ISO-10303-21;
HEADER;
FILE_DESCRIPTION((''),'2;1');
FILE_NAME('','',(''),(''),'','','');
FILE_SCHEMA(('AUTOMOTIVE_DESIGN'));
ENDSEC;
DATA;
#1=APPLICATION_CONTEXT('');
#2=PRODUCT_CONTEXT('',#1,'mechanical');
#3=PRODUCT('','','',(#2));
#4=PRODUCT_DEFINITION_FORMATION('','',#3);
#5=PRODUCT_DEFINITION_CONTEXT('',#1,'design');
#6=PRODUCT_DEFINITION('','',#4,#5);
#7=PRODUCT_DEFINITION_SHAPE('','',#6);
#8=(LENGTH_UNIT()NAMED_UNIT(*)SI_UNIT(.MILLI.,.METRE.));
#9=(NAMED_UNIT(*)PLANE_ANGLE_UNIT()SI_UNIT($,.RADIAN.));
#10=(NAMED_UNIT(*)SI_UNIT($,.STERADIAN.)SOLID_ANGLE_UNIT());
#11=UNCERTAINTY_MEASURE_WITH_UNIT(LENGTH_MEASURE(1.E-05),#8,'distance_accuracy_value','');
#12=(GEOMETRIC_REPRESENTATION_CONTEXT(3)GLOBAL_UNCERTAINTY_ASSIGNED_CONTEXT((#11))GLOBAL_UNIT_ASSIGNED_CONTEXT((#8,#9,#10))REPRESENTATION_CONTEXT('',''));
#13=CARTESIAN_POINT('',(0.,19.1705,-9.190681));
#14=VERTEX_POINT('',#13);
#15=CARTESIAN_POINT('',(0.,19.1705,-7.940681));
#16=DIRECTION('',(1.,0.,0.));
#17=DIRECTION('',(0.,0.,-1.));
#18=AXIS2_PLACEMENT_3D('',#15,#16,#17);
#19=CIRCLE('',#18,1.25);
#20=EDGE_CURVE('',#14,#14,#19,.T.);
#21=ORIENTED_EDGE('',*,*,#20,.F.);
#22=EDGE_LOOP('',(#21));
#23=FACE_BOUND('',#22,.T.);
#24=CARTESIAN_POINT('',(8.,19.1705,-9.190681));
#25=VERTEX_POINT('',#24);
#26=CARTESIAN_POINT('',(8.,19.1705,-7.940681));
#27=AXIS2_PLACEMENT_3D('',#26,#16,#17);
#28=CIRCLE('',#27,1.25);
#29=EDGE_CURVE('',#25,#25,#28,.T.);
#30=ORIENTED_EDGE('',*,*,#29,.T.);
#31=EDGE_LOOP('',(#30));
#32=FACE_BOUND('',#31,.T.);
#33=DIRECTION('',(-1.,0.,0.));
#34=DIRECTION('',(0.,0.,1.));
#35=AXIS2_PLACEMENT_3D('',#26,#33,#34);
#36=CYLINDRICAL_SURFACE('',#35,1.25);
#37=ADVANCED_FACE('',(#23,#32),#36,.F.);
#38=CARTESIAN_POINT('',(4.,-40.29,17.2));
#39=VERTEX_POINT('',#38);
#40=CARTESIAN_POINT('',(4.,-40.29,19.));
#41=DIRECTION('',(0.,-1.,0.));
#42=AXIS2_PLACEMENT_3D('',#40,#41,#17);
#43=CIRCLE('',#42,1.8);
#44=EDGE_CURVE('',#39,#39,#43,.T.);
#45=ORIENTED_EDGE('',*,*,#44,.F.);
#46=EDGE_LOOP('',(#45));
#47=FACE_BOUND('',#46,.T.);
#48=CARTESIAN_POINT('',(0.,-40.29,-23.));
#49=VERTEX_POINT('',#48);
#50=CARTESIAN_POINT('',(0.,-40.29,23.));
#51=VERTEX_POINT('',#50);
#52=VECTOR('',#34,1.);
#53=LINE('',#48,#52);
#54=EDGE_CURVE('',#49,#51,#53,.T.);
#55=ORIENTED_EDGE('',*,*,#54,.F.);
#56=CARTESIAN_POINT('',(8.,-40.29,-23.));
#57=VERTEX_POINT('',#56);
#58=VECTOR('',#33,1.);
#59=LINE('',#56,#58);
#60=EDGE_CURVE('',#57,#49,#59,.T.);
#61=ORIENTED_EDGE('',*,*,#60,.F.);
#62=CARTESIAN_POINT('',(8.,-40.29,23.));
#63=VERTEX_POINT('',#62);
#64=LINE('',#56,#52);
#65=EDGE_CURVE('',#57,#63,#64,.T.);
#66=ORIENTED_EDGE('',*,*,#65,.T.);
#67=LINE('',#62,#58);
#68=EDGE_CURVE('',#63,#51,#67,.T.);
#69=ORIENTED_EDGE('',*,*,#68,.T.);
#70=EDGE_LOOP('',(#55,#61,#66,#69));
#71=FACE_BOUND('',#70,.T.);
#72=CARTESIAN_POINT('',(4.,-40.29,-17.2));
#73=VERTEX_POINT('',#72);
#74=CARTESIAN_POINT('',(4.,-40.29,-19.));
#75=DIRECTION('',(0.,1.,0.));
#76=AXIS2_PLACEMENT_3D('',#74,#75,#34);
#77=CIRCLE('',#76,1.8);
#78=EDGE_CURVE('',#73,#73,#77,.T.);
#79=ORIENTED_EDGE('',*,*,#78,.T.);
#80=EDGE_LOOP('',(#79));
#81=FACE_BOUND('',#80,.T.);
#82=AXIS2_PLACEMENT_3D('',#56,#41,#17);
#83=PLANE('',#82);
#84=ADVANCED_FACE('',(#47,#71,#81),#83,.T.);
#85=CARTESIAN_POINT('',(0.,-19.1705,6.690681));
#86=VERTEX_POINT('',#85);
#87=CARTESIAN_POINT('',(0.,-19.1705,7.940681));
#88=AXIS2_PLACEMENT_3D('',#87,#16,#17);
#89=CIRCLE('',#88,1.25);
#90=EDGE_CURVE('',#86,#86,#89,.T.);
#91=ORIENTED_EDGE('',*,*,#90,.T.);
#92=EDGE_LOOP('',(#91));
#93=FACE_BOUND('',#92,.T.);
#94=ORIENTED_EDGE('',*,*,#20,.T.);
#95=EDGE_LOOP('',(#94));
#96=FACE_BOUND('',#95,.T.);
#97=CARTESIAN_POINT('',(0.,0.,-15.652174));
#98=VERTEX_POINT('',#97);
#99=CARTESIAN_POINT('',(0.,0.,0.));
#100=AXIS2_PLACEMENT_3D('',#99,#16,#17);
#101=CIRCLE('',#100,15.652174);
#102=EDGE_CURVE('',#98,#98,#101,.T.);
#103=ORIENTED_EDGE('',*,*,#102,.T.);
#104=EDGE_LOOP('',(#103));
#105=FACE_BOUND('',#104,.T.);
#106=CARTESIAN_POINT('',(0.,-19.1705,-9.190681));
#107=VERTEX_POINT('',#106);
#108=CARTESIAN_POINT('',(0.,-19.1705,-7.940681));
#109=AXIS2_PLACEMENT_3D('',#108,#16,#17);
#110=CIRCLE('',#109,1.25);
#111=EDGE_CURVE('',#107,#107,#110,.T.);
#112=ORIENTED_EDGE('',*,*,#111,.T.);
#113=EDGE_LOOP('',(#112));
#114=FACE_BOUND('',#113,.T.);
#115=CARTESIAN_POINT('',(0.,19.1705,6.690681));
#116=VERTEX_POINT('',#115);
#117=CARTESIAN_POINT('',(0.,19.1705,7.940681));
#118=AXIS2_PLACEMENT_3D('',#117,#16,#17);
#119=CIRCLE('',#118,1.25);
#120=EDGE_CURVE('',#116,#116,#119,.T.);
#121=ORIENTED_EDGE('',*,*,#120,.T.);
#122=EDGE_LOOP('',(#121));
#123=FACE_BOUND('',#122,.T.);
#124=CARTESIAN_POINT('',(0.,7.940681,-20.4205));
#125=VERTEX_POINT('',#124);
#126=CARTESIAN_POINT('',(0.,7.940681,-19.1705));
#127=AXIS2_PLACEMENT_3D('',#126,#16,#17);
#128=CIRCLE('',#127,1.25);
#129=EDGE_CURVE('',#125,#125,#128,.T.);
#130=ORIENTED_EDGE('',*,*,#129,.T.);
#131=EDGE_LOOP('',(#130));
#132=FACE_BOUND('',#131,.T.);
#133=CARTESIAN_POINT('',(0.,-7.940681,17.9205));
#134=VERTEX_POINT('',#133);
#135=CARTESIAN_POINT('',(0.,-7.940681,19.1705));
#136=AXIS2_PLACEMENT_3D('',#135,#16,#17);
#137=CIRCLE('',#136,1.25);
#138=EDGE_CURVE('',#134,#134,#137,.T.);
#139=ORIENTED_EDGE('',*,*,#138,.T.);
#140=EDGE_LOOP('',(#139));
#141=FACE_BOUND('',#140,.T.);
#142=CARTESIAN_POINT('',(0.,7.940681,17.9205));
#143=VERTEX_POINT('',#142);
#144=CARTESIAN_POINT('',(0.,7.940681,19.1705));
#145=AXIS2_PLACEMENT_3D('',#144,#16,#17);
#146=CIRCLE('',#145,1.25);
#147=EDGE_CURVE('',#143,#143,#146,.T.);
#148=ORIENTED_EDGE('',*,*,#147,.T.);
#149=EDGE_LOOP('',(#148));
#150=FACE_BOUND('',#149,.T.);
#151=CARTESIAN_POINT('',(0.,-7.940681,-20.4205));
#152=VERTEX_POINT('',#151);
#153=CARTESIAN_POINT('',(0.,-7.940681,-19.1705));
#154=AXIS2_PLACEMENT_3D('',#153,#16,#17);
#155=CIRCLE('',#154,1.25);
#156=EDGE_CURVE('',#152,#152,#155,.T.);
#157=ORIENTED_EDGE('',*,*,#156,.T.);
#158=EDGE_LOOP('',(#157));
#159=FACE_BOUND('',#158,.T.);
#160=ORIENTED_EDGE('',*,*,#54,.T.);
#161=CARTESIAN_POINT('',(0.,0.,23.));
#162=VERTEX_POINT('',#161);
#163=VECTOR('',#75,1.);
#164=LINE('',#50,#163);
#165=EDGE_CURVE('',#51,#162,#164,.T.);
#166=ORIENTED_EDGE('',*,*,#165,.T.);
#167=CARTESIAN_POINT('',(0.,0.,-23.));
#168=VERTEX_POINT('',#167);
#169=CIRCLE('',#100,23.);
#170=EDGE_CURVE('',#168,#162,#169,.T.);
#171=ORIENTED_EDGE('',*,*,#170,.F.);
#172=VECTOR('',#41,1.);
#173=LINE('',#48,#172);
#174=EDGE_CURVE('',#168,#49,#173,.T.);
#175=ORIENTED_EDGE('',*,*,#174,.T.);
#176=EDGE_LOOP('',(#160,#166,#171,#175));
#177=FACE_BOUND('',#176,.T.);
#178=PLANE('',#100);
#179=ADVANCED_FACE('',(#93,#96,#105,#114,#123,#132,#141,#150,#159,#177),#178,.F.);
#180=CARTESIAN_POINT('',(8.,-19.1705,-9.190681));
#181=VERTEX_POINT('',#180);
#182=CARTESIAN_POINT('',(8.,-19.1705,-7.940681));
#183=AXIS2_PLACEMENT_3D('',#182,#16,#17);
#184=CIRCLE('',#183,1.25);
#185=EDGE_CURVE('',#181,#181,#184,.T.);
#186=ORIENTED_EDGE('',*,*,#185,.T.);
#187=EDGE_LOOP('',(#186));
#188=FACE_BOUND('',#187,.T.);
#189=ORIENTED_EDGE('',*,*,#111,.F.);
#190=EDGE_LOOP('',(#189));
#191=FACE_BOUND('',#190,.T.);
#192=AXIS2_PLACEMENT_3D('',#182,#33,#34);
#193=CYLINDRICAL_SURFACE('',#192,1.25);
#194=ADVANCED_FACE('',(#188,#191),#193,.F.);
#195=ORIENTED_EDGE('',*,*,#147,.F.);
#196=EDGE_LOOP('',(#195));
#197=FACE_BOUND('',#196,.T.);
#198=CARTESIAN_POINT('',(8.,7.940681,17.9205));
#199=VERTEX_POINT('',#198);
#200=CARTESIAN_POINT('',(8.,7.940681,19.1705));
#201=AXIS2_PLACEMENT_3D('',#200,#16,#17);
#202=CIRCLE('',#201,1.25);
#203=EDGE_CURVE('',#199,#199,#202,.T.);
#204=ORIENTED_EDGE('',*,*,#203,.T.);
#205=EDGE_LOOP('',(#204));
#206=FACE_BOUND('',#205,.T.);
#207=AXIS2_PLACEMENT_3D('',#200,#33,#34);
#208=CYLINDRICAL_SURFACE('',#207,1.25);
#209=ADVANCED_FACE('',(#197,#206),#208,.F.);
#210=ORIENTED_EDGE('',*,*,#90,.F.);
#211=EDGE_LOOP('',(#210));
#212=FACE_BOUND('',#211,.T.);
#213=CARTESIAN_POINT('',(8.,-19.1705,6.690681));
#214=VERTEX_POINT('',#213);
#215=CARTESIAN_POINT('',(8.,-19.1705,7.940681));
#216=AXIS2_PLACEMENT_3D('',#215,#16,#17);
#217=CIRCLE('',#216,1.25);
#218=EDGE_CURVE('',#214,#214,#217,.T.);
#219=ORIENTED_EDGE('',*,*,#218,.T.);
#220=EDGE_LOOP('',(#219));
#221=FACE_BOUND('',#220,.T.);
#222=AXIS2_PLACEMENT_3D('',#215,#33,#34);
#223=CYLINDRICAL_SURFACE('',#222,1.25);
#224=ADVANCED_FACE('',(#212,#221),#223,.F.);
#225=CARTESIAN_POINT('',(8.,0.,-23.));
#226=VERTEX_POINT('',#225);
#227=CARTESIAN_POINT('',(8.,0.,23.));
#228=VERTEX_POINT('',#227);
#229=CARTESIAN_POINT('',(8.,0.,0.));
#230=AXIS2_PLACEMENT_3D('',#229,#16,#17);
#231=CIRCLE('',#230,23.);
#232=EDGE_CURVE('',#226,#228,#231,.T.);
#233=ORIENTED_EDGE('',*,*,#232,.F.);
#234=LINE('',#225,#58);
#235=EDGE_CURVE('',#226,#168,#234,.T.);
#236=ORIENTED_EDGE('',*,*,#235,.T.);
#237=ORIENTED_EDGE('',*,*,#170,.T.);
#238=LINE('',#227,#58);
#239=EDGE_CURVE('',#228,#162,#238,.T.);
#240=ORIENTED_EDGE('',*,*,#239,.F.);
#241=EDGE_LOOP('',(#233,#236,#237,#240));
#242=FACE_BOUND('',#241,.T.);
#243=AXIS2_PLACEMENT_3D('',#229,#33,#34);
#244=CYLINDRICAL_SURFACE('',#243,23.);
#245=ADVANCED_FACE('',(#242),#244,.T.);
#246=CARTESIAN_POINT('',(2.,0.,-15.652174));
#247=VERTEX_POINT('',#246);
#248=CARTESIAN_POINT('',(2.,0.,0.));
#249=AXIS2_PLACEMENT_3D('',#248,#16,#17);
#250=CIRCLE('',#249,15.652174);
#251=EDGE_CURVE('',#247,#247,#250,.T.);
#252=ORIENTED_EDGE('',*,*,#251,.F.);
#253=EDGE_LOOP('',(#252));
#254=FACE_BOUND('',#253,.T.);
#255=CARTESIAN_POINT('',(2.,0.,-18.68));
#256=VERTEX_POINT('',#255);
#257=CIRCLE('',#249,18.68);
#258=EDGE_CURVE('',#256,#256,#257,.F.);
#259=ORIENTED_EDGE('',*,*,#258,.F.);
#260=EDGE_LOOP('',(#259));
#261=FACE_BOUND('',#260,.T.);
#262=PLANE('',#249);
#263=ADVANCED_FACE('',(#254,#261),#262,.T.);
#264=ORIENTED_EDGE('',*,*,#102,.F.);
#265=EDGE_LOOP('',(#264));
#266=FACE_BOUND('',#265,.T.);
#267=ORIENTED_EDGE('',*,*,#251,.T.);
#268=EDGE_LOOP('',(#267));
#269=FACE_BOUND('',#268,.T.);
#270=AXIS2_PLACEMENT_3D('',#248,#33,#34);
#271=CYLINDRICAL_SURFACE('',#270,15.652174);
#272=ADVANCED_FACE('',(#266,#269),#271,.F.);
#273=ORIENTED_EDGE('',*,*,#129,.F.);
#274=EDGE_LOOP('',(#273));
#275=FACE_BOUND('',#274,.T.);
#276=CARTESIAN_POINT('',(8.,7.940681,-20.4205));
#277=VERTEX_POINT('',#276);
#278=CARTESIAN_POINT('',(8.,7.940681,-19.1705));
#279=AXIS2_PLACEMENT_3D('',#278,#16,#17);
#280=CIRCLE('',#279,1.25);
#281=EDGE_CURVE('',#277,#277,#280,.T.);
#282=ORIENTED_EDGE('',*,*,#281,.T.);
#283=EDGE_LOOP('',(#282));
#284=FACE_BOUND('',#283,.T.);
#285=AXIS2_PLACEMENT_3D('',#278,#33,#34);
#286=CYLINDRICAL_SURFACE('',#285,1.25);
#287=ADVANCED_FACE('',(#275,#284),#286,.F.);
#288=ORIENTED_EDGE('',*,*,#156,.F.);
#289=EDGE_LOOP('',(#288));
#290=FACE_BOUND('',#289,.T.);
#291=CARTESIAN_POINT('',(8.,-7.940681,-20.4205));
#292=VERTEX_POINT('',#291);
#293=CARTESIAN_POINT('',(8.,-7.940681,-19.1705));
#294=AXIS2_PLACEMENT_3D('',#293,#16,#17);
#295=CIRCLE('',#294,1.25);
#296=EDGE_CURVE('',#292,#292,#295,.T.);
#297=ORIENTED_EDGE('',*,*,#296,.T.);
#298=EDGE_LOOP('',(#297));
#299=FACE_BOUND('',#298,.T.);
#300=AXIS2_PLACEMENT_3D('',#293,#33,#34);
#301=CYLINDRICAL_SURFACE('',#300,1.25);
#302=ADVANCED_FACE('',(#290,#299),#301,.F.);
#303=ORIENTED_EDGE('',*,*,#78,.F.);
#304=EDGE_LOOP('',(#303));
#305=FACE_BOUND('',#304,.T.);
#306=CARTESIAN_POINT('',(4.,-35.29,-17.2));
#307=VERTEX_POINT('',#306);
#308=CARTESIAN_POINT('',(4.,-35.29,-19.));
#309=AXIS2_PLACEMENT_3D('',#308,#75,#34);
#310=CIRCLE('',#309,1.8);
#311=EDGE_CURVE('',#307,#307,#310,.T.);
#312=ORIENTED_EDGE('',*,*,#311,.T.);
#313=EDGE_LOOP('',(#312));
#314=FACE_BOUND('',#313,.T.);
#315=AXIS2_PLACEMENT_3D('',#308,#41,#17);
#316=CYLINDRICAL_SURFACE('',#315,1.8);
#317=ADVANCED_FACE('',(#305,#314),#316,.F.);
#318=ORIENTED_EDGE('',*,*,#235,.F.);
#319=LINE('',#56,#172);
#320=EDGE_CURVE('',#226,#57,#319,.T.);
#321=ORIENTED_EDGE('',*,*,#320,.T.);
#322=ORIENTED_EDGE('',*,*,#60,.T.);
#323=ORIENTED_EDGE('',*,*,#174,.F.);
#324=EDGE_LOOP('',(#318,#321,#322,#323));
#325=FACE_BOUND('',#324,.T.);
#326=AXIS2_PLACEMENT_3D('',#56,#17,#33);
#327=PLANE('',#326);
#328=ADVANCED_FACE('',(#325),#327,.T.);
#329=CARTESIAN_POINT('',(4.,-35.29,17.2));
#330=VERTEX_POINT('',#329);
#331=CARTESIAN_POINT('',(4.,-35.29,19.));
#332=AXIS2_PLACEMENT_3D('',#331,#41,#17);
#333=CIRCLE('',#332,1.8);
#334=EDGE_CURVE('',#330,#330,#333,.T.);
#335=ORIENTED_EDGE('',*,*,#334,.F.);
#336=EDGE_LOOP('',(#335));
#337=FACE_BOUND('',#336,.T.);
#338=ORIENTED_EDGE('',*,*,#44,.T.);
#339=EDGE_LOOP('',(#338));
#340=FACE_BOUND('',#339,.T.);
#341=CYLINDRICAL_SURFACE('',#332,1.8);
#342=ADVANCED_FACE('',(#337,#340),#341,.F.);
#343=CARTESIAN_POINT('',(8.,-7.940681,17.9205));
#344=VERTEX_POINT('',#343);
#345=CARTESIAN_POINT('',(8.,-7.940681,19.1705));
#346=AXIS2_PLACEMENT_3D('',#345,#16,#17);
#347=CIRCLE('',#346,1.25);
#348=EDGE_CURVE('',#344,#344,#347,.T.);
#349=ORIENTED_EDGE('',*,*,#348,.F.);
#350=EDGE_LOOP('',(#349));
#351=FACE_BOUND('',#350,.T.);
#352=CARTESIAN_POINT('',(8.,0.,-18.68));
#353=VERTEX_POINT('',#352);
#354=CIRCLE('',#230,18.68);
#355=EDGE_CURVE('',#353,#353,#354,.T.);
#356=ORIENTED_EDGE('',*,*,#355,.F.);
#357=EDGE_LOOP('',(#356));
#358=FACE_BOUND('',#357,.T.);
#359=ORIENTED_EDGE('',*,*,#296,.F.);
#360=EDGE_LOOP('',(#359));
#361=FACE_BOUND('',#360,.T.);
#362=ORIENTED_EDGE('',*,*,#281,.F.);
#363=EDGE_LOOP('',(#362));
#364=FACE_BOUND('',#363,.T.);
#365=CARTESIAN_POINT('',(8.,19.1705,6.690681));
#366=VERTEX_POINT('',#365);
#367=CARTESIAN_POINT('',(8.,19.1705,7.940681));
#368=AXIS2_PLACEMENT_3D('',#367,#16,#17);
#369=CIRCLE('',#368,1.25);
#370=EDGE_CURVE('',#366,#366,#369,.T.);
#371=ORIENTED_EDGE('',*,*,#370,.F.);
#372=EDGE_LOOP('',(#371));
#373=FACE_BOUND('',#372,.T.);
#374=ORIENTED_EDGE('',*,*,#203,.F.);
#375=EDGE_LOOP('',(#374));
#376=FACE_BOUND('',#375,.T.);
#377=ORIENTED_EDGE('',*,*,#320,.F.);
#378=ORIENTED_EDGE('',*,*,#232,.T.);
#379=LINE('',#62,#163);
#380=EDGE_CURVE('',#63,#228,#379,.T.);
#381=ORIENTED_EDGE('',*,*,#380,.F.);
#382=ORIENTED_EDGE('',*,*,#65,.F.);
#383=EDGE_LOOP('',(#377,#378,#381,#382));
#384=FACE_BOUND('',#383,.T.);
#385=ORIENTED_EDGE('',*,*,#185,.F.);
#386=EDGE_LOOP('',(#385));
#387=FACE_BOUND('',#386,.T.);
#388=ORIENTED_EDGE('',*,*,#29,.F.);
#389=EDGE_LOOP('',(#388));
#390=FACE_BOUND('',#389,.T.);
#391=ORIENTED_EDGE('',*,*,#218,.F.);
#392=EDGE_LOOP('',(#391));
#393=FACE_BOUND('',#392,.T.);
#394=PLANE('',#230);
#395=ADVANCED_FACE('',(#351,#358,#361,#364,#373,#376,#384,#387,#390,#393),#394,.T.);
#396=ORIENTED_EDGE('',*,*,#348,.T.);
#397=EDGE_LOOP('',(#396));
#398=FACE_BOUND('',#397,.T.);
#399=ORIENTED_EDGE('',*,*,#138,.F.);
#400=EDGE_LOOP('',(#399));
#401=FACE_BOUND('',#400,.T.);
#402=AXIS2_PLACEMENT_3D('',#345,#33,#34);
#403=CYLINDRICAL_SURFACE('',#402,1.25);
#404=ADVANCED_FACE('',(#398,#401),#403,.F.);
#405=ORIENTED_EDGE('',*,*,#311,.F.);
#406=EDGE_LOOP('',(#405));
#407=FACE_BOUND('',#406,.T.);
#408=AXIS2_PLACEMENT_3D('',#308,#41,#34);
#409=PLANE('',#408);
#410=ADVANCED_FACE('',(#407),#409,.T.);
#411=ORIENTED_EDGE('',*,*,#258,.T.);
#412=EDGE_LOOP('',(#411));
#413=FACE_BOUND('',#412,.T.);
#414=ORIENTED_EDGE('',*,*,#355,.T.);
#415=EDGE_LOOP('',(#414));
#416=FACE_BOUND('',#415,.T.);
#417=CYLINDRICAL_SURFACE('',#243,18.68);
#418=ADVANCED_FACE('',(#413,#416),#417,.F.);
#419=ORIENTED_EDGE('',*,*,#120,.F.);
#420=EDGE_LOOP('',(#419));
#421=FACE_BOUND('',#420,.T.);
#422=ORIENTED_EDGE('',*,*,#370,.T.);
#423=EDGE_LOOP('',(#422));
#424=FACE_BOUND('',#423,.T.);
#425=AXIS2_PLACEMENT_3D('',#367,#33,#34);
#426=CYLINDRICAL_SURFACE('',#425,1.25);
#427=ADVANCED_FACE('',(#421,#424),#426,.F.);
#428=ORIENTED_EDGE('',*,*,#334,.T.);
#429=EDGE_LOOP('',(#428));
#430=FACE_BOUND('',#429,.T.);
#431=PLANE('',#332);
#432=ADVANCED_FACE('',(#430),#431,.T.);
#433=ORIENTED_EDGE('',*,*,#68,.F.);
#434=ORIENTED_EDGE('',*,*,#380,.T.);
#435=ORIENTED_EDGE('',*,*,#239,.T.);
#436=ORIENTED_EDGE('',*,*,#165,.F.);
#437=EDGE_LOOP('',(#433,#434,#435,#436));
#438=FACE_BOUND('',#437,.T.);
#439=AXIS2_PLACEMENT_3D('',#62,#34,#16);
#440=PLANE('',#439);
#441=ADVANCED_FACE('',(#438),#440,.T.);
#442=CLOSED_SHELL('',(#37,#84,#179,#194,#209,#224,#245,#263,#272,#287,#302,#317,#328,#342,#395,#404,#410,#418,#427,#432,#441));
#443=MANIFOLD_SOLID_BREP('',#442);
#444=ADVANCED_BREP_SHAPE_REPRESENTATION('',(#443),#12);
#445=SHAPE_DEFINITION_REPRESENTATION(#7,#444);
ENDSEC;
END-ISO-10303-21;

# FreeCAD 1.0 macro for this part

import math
import FreeCAD as App
import Part
import Sketcher
from FreeCAD import Vector
Q = App.Units.Quantity

doc = App.newDocument("Part")
body = doc.addObject("PartDesign::Body", "Body")

# Sketch on YZ plane
sketch1 = body.newObject("Sketcher::SketchObject", "Sketch")
sketch1.AttachmentSupport = (doc.getObject("YZ_Plane"), [""])
sketch1.MapMode = "FlatFace"
sketch1.addGeometry(Part.Circle(Vector(0, 0, 0), Vector(0, 0, 1), 18.68), False)
sketch1.addGeometry(Part.Circle(Vector(0, 0, 0), Vector(0, 0, 1), 15.652174), False)
sketch1.addConstraint(Sketcher.Constraint("Coincident", 0, 3, -1, 1))
sketch1.addConstraint(Sketcher.Constraint("Coincident", 1, 3, -1, 1))
sketch1.addConstraint(Sketcher.Constraint("Diameter", 0, Q("37.36 mm")))
sketch1.addConstraint(Sketcher.Constraint("Diameter", 1, Q("31.304348 mm")))
pad1 = body.newObject("PartDesign::Pad", "Pad")
pad1.Profile = sketch1
pad1.Length = 2

# Sketch on YZ plane
sketch2 = body.newObject("Sketcher::SketchObject", "Sketch001")
sketch2.AttachmentSupport = (doc.getObject("YZ_Plane"), [""])
sketch2.MapMode = "FlatFace"
sketch2.addGeometry(Part.Circle(Vector(0, 0, 0), Vector(0, 0, 1), 23), False)
sketch2.addGeometry(Part.Circle(Vector(-19.1705, 7.940681, 0), Vector(0, 0, 1), 1.25), False)
sketch2.addGeometry(Part.Circle(Vector(-7.940681, 19.1705, 0), Vector(0, 0, 1), 1.25), False)
sketch2.addGeometry(Part.Circle(Vector(0, 0, 0), Vector(0, 0, 1), 18.68), False)
sketch2.addGeometry(Part.Circle(Vector(-19.1705, -7.940681, 0), Vector(0, 0, 1), 1.25), False)
sketch2.addGeometry(Part.Circle(Vector(-7.940681, -19.1705, 0), Vector(0, 0, 1), 1.25), False)
sketch2.addGeometry(Part.Circle(Vector(7.940681, 19.1705, 0), Vector(0, 0, 1), 1.25), False)
sketch2.addGeometry(Part.Circle(Vector(19.1705, 7.940681, 0), Vector(0, 0, 1), 1.25), False)
sketch2.addGeometry(Part.Circle(Vector(7.940681, -19.1705, 0), Vector(0, 0, 1), 1.25), False)
sketch2.addGeometry(Part.Circle(Vector(19.1705, -7.940681, 0), Vector(0, 0, 1), 1.25), False)
sketch2.addConstraint(Sketcher.Constraint("Coincident", 0, 3, -1, 1))
sketch2.addConstraint(Sketcher.Constraint("Coincident", 3, 3, -1, 1))
sketch2.addConstraint(Sketcher.Constraint("Equal", 1, 2))
sketch2.addConstraint(Sketcher.Constraint("Equal", 2, 4))
sketch2.addConstraint(Sketcher.Constraint("Equal", 4, 5))
sketch2.addConstraint(Sketcher.Constraint("Equal", 5, 6))
sketch2.addConstraint(Sketcher.Constraint("Equal", 6, 7))
sketch2.addConstraint(Sketcher.Constraint("Equal", 7, 8))
sketch2.addConstraint(Sketcher.Constraint("Equal", 8, 9))
sketch2.addConstraint(Sketcher.Constraint("Symmetric", 5, 3, 6, 3, -1, 1))
sketch2.addConstraint(Sketcher.Constraint("Symmetric", 4, 3, 7, 3, -1, 1))
sketch2.addConstraint(Sketcher.Constraint("Symmetric", 2, 3, 8, 3, -1, 1))
sketch2.addConstraint(Sketcher.Constraint("Symmetric", 1, 3, 9, 3, -1, 1))
sketch2.addConstraint(Sketcher.Constraint("Symmetric", 2, 3, 6, 3, -2))
sketch2.addConstraint(Sketcher.Constraint("Symmetric", 1, 3, 7, 3, -2))
sketch2.addConstraint(Sketcher.Constraint("Diameter", 0, Q("46 mm")))
sketch2.addConstraint(Sketcher.Constraint("Diameter", 1, Q("2.5 mm")))
sketch2.addConstraint(Sketcher.Constraint("Diameter", 3, Q("37.36 mm")))
sketch2.addConstraint(Sketcher.Constraint("DistanceY", 5, 3, 2, 3, Q("38.341001 mm")))
sketch2.addConstraint(Sketcher.Constraint("DistanceX", 1, 3, 7, 3, Q("38.341001 mm")))
sketch2.addConstraint(Sketcher.Constraint("DistanceY", -1, 1, 1, 3, Q("7.940681 mm")))
sketch2.addConstraint(Sketcher.Constraint("DistanceX", 2, 3, -1, 1, Q("7.940681 mm")))
pad2 = body.newObject("PartDesign::Pad", "Pad001")
pad2.Profile = sketch2
pad2.Length = 8

# Sketch on YZ plane
sketch3 = body.newObject("Sketcher::SketchObject", "Sketch002")
sketch3.AttachmentSupport = (doc.getObject("YZ_Plane"), [""])
sketch3.MapMode = "FlatFace"
sketch3.addGeometry(Part.LineSegment(Vector(0, -23, 0), Vector(-40.29, -23, 0)), False)
sketch3.addGeometry(Part.LineSegment(Vector(-40.29, -23, 0), Vector(-40.29, 23, 0)), False)
sketch3.addGeometry(Part.LineSegment(Vector(-40.29, 23, 0), Vector(0, 23, 0)), False)
sketch3.addGeometry(Part.ArcOfCircle(Part.Circle(Vector(0, 0, 0), Vector(0, 0, 1), 23), math.radians(90), math.radians(270)), False)
sketch3.addConstraint(Sketcher.Constraint("Coincident", 0, 2, 1, 1))
sketch3.addConstraint(Sketcher.Constraint("Coincident", 1, 2, 2, 1))
sketch3.addConstraint(Sketcher.Constraint("Tangent", 2, 2, 3, 1))
sketch3.addConstraint(Sketcher.Constraint("Tangent", 3, 2, 0, 1))
sketch3.addConstraint(Sketcher.Constraint("Horizontal", 0))
sketch3.addConstraint(Sketcher.Constraint("Vertical", 1))
sketch3.addConstraint(Sketcher.Constraint("Horizontal", 2))
sketch3.addConstraint(Sketcher.Constraint("Coincident", 3, 3, -1, 1))
sketch3.addConstraint(Sketcher.Constraint("Radius", 3, Q("23 mm")))
sketch3.addConstraint(Sketcher.Constraint("DistanceX", 0, 2, 0, 1, Q("40.29 mm")))
pad3 = body.newObject("PartDesign::Pad", "Pad002")
pad3.Profile = sketch3
pad3.Length = 8

# Sketch on XZ plane
sketch4 = body.newObject("Sketcher::SketchObject", "Sketch003")
sketch4.AttachmentSupport = (doc.getObject("XZ_Plane"), [""])
sketch4.MapMode = "FlatFace"
sketch4.AttachmentOffset = App.Placement(Vector(0, 0, 40.29), App.Rotation())
sketch4.addGeometry(Part.Circle(Vector(4, 19, 0), Vector(0, 0, 1), 1.8), False)
sketch4.addConstraint(Sketcher.Constraint("Diameter", 0, Q("3.6 mm")))
sketch4.addConstraint(Sketcher.Constraint("DistanceX", -1, 1, 0, 3, Q("4 mm")))
sketch4.addConstraint(Sketcher.Constraint("DistanceY", -1, 1, 0, 3, Q("19 mm")))
pocket1 = body.newObject("PartDesign::Pocket", "Pocket")
pocket1.Profile = sketch4
pocket1.Length = 5
doc.recompute()

mirrored = body.newObject("PartDesign::Mirrored", "Mirrored")
mirrored.Originals = [pocket1]
mirrored.MirrorPlane = (doc.getObject("XY_Plane"), [""])
body.Tip = mirrored

doc.recompute()
